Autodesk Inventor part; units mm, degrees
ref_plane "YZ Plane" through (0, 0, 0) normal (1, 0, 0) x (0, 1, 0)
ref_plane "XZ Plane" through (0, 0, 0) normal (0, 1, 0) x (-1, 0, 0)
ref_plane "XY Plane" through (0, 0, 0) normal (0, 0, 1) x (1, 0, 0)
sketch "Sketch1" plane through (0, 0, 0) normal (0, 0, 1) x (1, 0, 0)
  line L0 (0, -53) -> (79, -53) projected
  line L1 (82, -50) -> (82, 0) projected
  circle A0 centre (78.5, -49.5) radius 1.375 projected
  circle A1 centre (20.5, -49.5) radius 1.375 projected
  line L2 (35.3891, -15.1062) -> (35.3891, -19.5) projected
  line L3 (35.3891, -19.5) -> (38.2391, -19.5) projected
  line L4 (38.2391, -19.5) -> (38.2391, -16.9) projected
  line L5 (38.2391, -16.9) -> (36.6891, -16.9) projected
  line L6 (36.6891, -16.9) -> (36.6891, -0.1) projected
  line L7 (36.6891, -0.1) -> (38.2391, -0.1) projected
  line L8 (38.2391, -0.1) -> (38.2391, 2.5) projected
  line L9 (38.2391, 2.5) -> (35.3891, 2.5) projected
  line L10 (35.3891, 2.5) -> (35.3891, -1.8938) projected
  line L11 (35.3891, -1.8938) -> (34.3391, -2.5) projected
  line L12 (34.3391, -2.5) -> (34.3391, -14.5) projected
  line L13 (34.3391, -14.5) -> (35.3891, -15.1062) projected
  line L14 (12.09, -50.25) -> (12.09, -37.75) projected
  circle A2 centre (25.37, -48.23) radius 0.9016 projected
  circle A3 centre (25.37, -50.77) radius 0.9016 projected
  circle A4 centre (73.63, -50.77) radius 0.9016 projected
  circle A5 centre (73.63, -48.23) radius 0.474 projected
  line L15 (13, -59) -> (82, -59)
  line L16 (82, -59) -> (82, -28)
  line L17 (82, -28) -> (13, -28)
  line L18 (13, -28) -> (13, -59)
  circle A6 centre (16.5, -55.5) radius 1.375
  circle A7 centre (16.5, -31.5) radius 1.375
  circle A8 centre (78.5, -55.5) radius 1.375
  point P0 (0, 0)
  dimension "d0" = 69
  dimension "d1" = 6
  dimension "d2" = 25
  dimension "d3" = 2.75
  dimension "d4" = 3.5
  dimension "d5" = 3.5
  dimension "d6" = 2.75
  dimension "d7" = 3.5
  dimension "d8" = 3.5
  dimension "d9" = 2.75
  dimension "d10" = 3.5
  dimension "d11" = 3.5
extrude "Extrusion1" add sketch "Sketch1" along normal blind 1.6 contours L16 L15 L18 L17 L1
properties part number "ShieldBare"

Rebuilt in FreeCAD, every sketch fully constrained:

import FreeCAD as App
import Part
import Sketcher


def add_polygon(sketch, points):
    """Adds a closed chain of lines whose ends are joined by coincident constraints."""
    first, n = sketch.GeometryCount, len(points)
    for a, b in zip(points, points[1:] + points[:1]):
        sketch.addGeometry(Part.LineSegment(App.Vector(*a, 0), App.Vector(*b, 0)), False)
    for i in range(n):
        sketch.addConstraint(Sketcher.Constraint("Coincident", first + i, 2, first + (i + 1) % n, 1))

doc = App.newDocument("Part")
params = doc.addObject("Spreadsheet::Sheet", "Params")
for row, (alias, value) in enumerate([
    ("sketch1_diameter", "2.75 mm"),
    ("sketch1_width", "69 mm"),
    ("sketch1_height", "31 mm"),
    ("pad1_length", "1.6 mm"),
], start=1):
    params.set(f"A{row}", alias)
    params.set(f"B{row}", "=" + value)
    params.setAlias(f"B{row}", alias)

body = doc.addObject("PartDesign::Body", "Body")

sketch1 = body.newObject("Sketcher::SketchObject", "Sketch")
sketch1.AttachmentSupport = (doc.getObject("XY_Plane"), [""])
sketch1.MapMode = "FlatFace"
add_polygon(sketch1, [(82, -59), (82, -28), (13, -28), (13, -59)])
sketch1.addGeometry(Part.Circle(App.Vector(16.5, -55.5, 0), App.Vector(0, 0, 1), 1.38), False)
sketch1.addGeometry(Part.Circle(App.Vector(20.5, -49.5, 0), App.Vector(0, 0, 1), 1.38), False)
sketch1.addGeometry(Part.Circle(App.Vector(25.37, -50.77, 0), App.Vector(0, 0, 1), 0.9), False)
sketch1.addGeometry(Part.Circle(App.Vector(25.37, -48.23, 0), App.Vector(0, 0, 1), 0.9), False)
sketch1.addGeometry(Part.Circle(App.Vector(16.5, -31.5, 0), App.Vector(0, 0, 1), 1.38), False)
sketch1.addGeometry(Part.Circle(App.Vector(78.5, -55.5, 0), App.Vector(0, 0, 1), 1.38), False)
sketch1.addGeometry(Part.Circle(App.Vector(73.63, -50.77, 0), App.Vector(0, 0, 1), 0.9), False)
sketch1.addGeometry(Part.Circle(App.Vector(73.63, -48.23, 0), App.Vector(0, 0, 1), 0.47), False)
sketch1.addGeometry(Part.Circle(App.Vector(78.5, -49.5, 0), App.Vector(0, 0, 1), 1.38), False)
sketch1.addConstraint(Sketcher.Constraint("Vertical", 0))
sketch1.addConstraint(Sketcher.Constraint("Horizontal", 1))
sketch1.addConstraint(Sketcher.Constraint("Vertical", 2))
sketch1.addConstraint(Sketcher.Constraint("Horizontal", 3))
sketch1.addConstraint(Sketcher.Constraint("Equal", 4, 5))
sketch1.addConstraint(Sketcher.Constraint("Equal", 6, 7))
sketch1.addConstraint(Sketcher.Constraint("Equal", 5, 8))
sketch1.addConstraint(Sketcher.Constraint("Equal", 8, 9))
sketch1.addConstraint(Sketcher.Constraint("Equal", 7, 10))
sketch1.addConstraint(Sketcher.Constraint("Equal", 9, 12))
sketch1.addConstraint(Sketcher.Constraint("Horizontal", 4, 3, 9, 3))
sketch1.addConstraint(Sketcher.Constraint("Horizontal", 6, 3, 10, 3))
sketch1.addConstraint(Sketcher.Constraint("Horizontal", 7, 3, 11, 3))
sketch1.addConstraint(Sketcher.Constraint("Horizontal", 5, 3, 12, 3))
sketch1.addConstraint(Sketcher.Constraint("Vertical", 6, 3, 7, 3))
sketch1.addConstraint(Sketcher.Constraint("Vertical", 4, 3, 8, 3))
sketch1.addConstraint(Sketcher.Constraint("Vertical", 10, 3, 11, 3))
sketch1.addConstraint(Sketcher.Constraint("Vertical", 9, 3, 12, 3))
sketch1.addConstraint(Sketcher.Constraint("Diameter", 4, 2.75))
sketch1.addConstraint(Sketcher.Constraint("DistanceX", 1, 2, 1, 1, 69.0))
sketch1.addConstraint(Sketcher.Constraint("DistanceY", 4, 3, 5, 3, 6.0))
sketch1.addConstraint(Sketcher.Constraint("DistanceX", 12, 3, 0, 2, 3.5))
sketch1.addConstraint(Sketcher.Constraint("DistanceX", 1, 2, 8, 3, 3.5))
sketch1.addConstraint(Sketcher.Constraint("DistanceY", 8, 3, 1, 2, 3.5))
sketch1.addConstraint(Sketcher.Constraint("DistanceY", 2, 2, 4, 3, 3.5))
sketch1.addConstraint(Sketcher.Constraint("DistanceY", 0, 1, 0, 2, 31.0))
sketch1.addConstraint(Sketcher.Constraint("Diameter", 11, 0.948))
sketch1.addConstraint(Sketcher.Constraint("DistanceX", -1, 1, 0, 2, 82.0))
sketch1.addConstraint(Sketcher.Constraint("DistanceY", 0, 2, -1, 1, 28.0))
sketch1.addConstraint(Sketcher.Constraint("DistanceX", 4, 3, 5, 3, 4.0))
sketch1.addConstraint(Sketcher.Constraint("Diameter", 6, 1.8032))
sketch1.addConstraint(Sketcher.Constraint("DistanceX", -1, 1, 6, 3, 25.37))
sketch1.addConstraint(Sketcher.Constraint("DistanceY", 6, 3, -1, 1, 50.77))
sketch1.addConstraint(Sketcher.Constraint("DistanceY", 7, 3, -1, 1, 48.23))
sketch1.addConstraint(Sketcher.Constraint("DistanceX", -1, 1, 10, 3, 73.63))
sketch1.setExpression("Constraints[22]", "Params.sketch1_diameter")
sketch1.setExpression("Constraints[23]", "Params.sketch1_width")
sketch1.setExpression("Constraints[29]", "Params.sketch1_height")
pad1 = body.newObject("PartDesign::Pad", "Pad")
pad1.Profile = sketch1
pad1.setExpression("Length", "Params.pad1_length")

doc.recompute()
